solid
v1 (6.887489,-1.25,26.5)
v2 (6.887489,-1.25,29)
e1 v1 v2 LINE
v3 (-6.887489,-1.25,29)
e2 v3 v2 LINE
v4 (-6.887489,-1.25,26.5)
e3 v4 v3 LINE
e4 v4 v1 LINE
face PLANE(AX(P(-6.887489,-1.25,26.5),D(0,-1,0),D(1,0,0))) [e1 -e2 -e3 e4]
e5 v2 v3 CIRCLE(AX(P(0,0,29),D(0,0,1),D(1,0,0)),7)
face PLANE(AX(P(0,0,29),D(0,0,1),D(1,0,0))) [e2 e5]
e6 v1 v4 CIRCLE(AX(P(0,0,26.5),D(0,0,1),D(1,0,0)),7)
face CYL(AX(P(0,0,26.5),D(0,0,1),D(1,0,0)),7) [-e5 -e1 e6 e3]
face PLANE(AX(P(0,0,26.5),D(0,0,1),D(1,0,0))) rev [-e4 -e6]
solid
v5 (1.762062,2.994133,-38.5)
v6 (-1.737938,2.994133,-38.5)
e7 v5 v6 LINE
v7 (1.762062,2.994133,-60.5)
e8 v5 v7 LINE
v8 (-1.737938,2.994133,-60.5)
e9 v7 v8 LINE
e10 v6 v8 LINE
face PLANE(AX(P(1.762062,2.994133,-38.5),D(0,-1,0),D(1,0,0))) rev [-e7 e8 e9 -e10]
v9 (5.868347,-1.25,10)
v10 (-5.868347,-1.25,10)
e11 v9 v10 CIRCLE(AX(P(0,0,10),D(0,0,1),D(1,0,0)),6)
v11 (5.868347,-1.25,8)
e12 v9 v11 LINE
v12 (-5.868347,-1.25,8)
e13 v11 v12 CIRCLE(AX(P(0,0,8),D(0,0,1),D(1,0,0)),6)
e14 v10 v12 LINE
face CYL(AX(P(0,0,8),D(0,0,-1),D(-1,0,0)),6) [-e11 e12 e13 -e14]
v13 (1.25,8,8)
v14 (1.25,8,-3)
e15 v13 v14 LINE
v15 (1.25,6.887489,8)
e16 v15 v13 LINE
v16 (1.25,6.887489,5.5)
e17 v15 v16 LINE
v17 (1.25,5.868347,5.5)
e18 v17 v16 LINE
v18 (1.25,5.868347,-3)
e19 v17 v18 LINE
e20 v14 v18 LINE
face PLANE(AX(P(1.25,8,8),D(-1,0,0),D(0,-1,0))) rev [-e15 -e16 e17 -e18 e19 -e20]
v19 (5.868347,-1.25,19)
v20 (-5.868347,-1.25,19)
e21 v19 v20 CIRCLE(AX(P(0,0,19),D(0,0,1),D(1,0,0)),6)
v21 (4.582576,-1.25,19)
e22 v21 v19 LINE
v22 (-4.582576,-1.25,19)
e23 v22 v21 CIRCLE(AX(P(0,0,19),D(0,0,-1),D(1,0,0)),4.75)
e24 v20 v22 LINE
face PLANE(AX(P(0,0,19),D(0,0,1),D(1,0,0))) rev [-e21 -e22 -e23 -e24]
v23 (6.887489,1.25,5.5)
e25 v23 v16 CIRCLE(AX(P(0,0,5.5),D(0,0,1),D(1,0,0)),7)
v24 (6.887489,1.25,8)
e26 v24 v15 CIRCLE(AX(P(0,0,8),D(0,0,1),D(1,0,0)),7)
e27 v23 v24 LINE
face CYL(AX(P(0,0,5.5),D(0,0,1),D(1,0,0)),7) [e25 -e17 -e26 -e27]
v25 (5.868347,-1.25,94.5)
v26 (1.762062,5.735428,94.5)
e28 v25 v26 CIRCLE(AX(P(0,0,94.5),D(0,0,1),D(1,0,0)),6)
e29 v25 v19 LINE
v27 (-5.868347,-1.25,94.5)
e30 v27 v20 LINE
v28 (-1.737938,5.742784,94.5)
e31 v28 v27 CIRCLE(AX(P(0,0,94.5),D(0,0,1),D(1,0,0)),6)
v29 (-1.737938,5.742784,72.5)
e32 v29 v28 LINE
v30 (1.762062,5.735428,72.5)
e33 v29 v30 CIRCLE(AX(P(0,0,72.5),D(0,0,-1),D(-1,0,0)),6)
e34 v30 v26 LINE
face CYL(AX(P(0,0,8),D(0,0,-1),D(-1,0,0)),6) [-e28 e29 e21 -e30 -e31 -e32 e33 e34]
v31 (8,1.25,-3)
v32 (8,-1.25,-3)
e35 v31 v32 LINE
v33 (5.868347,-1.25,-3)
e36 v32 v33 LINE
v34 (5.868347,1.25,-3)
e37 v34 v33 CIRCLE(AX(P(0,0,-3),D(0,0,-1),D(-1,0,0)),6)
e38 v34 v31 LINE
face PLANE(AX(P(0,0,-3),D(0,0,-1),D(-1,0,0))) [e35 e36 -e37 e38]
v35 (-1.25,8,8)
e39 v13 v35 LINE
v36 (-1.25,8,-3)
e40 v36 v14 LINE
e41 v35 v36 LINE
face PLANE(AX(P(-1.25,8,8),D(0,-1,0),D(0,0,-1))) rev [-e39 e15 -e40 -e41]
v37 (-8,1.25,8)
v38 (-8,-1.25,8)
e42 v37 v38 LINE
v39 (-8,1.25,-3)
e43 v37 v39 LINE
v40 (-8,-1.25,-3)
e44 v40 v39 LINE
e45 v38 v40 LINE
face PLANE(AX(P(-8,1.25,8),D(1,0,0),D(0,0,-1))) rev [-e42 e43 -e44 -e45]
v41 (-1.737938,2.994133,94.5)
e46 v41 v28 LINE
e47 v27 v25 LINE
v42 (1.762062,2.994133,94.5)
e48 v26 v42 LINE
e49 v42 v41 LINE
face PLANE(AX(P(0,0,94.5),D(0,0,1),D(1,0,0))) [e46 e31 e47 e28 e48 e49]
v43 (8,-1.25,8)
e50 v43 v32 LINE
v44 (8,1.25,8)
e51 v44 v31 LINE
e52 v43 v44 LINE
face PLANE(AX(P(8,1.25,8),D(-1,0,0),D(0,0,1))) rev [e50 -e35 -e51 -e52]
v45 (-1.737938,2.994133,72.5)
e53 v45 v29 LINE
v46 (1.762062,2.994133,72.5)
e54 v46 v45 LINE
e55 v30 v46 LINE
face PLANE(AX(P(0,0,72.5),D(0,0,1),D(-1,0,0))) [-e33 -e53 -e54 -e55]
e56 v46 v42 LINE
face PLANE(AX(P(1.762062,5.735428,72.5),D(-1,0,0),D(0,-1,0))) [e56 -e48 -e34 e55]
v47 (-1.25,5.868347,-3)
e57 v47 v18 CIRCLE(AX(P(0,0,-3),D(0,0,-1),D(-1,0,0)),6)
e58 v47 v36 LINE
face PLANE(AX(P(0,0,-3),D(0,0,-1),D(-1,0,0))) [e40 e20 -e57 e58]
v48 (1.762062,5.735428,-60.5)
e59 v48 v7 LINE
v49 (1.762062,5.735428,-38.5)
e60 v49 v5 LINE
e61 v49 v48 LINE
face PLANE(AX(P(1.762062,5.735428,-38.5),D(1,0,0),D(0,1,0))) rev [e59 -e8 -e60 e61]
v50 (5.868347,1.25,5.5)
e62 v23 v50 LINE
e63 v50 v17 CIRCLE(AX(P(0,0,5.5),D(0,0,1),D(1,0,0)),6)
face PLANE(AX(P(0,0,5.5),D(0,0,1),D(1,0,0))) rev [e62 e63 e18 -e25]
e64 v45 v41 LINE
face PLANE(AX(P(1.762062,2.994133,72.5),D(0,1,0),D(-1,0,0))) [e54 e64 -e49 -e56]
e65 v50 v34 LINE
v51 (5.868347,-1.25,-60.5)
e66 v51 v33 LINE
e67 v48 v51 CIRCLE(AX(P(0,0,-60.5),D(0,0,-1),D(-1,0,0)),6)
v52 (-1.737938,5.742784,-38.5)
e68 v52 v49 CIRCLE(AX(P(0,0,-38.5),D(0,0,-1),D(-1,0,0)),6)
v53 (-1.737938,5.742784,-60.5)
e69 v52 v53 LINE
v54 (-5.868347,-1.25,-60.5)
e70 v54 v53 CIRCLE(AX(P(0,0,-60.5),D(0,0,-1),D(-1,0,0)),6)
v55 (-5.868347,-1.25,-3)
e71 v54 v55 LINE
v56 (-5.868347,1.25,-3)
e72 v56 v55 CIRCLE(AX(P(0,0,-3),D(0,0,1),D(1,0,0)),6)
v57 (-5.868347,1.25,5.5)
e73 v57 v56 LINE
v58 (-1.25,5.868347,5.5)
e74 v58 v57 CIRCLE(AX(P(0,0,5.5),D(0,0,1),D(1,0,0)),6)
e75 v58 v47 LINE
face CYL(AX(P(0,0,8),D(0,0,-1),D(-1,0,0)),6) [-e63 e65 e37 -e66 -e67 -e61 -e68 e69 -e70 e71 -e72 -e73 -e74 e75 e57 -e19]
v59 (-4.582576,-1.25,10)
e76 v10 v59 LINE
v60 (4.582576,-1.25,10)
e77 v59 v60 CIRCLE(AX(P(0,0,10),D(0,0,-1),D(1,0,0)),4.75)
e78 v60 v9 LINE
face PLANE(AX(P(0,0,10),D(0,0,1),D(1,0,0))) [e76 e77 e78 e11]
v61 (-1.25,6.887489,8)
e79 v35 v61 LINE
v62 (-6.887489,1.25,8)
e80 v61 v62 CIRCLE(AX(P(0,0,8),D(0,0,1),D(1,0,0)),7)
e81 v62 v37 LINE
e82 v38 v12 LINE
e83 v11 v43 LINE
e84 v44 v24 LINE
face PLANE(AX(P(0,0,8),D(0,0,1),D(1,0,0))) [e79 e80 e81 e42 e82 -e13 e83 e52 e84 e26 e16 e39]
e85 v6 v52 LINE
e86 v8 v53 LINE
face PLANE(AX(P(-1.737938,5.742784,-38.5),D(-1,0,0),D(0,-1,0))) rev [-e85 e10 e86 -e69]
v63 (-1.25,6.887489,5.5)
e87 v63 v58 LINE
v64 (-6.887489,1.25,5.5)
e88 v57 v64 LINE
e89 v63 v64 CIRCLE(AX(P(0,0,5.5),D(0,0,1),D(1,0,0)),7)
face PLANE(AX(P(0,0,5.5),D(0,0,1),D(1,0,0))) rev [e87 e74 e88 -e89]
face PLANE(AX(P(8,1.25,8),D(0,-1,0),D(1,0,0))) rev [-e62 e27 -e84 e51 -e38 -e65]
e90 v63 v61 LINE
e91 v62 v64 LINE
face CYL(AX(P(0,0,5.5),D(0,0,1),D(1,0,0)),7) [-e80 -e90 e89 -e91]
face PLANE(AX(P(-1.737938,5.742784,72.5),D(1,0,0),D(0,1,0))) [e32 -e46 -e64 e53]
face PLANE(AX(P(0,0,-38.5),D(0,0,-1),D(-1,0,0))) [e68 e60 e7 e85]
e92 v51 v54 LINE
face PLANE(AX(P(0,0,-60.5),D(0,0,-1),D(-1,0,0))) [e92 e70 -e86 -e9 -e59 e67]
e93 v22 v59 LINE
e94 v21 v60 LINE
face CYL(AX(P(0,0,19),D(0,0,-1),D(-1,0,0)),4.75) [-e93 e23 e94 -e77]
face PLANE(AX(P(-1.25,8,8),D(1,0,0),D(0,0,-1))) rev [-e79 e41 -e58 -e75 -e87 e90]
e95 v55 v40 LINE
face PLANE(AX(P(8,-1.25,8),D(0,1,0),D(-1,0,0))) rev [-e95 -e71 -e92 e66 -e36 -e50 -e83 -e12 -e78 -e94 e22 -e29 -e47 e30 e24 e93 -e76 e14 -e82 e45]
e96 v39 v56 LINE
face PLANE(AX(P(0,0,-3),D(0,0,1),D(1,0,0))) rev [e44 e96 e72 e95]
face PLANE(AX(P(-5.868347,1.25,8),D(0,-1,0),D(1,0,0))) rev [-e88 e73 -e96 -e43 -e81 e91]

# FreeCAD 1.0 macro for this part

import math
import FreeCAD as App
import Part
import Sketcher
from FreeCAD import Vector
Q = App.Units.Quantity

doc = App.newDocument("Part")
body = doc.addObject("PartDesign::Body", "Body")

sketch1 = doc.addObject("Sketcher::SketchObject", "Sketch")
body.addObject(sketch1)
sketch1.AttachmentSupport = (doc.XY_Plane, [""])
sketch1.MapMode = "FlatFace"
sketch1.addGeometry([
    Part.LineSegment(Vector(8, 1.2, 0), Vector(5.9, 1.2, 0)),
    Part.ArcOfCircle(Part.Circle(Vector(0, 0, 0), Vector(0, 0, 1), 6), math.radians(12), math.radians(78)),
    Part.LineSegment(Vector(1.2, 5.9, 0), Vector(1.2, 8, 0)),
    Part.LineSegment(Vector(1.2, 8, 0), Vector(-1.2, 8, 0)),
    Part.LineSegment(Vector(-1.2, 8, 0), Vector(-1.2, 5.9, 0)),
    Part.ArcOfCircle(Part.Circle(Vector(0, 0, 0), Vector(0, 0, 1), 6), math.radians(102), math.radians(168)),
    Part.LineSegment(Vector(-5.9, 1.2, 0), Vector(-8, 1.2, 0)),
    Part.LineSegment(Vector(-8, 1.2, 0), Vector(-8, -1.2, 0)),
    Part.LineSegment(Vector(-8, -1.2, 0), Vector(8, -1.2, 0)),
    Part.LineSegment(Vector(8, -1.2, 0), Vector(8, 1.2, 0)),
], False)
sketch1.addConstraint([
    Sketcher.Constraint("Coincident", 0, 2, 1, 1),
    Sketcher.Constraint("Coincident", 1, 2, 2, 1),
    Sketcher.Constraint("Coincident", 2, 2, 3, 1),
    Sketcher.Constraint("Coincident", 3, 2, 4, 1),
    Sketcher.Constraint("Coincident", 4, 2, 5, 1),
    Sketcher.Constraint("Coincident", 5, 2, 6, 1),
    Sketcher.Constraint("Coincident", 6, 2, 7, 1),
    Sketcher.Constraint("Coincident", 7, 2, 8, 1),
    Sketcher.Constraint("Coincident", 8, 2, 9, 1),
    Sketcher.Constraint("Coincident", 9, 2, 0, 1),
    Sketcher.Constraint("Horizontal", 0),
    Sketcher.Constraint("Vertical", 2),
    Sketcher.Constraint("Horizontal", 3),
    Sketcher.Constraint("Vertical", 4),
    Sketcher.Constraint("Horizontal", 6),
    Sketcher.Constraint("Vertical", 7),
    Sketcher.Constraint("Horizontal", 8),
    Sketcher.Constraint("Vertical", 9),
    Sketcher.Constraint("Coincident", 1, 3, -1, 1),
    Sketcher.Constraint("Coincident", 5, 3, -1, 1),
    Sketcher.Constraint("Equal", 1, 5),
    Sketcher.Constraint("Symmetric", 6, 2, 8, 2, -1, 1),
    Sketcher.Constraint("Horizontal", 1, 2, 4, 2),
    Sketcher.Constraint("Horizontal", 0, 2, 5, 2),
    Sketcher.Constraint("Equal", 6, 2),
    Sketcher.Constraint("Equal", 3, 7),
    Sketcher.Constraint("Radius", 1, Q("6 mm")),
    Sketcher.Constraint("DistanceX", 8, 1, 8, 2, Q("16 mm")),
    Sketcher.Constraint("DistanceX", 3, 2, 3, 1, Q("2.5 mm")),
])
pad1 = doc.addObject("PartDesign::Pad", "Pad")
body.addObject(pad1)
pad1.Profile = sketch1
pad1.Length = 8

sketch2 = doc.addObject("Sketcher::SketchObject", "Sketch001")
body.addObject(sketch2)
sketch2.AttachmentSupport = (doc.XY_Plane, [""])
sketch2.MapMode = "FlatFace"
sketch2.AttachmentOffset = App.Placement(Vector(0, 0, 8), App.Rotation())
sketch2.addGeometry([
    Part.LineSegment(Vector(-6, -1, 0), Vector(6, -1, 0)),
    Part.ArcOfCircle(Part.Circle(Vector(0, 0, 0), Vector(0, 0, 1), 6), math.radians(-12), math.radians(192)),
], False)
sketch2.addConstraint([
    Sketcher.Constraint("Coincident", 0, 1, 1, 2),
    Sketcher.Constraint("Coincident", 1, 1, 0, 2),
    Sketcher.Constraint("Horizontal", 0),
    Sketcher.Constraint("Coincident", 1, 3, -1, 1),
    Sketcher.Constraint("Radius", 1, Q("6 mm")),
    Sketcher.Constraint("DistanceY", 0, 1, -1, 1, Q("1.25 mm")),
])
pad2 = doc.addObject("PartDesign::Pad", "Pad001")
body.addObject(pad2)
pad2.Profile = sketch2
pad2.Length = 26

sketch3 = doc.addObject("Sketcher::SketchObject", "Sketch002")
body.addObject(sketch3)
sketch3.AttachmentSupport = (doc.XY_Plane, [""])
sketch3.MapMode = "FlatFace"
sketch3.AttachmentOffset = App.Placement(Vector(0, 0, 8), App.Rotation())
sketch3.addGeometry([
    Part.LineSegment(Vector(-7, -1, 0), Vector(7, -1, 0)),
    Part.ArcOfCircle(Part.Circle(Vector(0, 0, 0), Vector(0, 0, 1), 7), math.radians(-10), math.radians(190)),
], False)
sketch3.addConstraint([
    Sketcher.Constraint("Coincident", 0, 1, 1, 2),
    Sketcher.Constraint("Coincident", 1, 1, 0, 2),
    Sketcher.Constraint("Horizontal", 0),
    Sketcher.Constraint("Coincident", 1, 3, -1, 1),
    Sketcher.Constraint("Radius", 1, Q("7 mm")),
    Sketcher.Constraint("DistanceY", 0, 1, -1, 1, Q("1.25 mm")),
])
pad3 = doc.addObject("PartDesign::Pad", "Pad002")
body.addObject(pad3)
pad3.Profile = sketch3
pad3.Length = 2.5
pad3.Reversed = True

sketch4 = doc.addObject("Sketcher::SketchObject", "Sketch003")
body.addObject(sketch4)
sketch4.AttachmentSupport = (doc.XY_Plane, [""])
sketch4.MapMode = "FlatFace"
sketch4.AttachmentOffset = App.Placement(Vector(0, 0, -8), App.Rotation())
sketch4.addGeometry([
    Part.LineSegment(Vector(6, -1, 0), Vector(-6, -1, 0)),
    Part.ArcOfCircle(Part.Circle(Vector(0, 0, 0), Vector(0, 0, 1), 6), math.radians(-12), math.radians(192)),
], False)
sketch4.addConstraint([
    Sketcher.Constraint("Coincident", 0, 1, 1, 1),
    Sketcher.Constraint("Coincident", 1, 2, 0, 2),
    Sketcher.Constraint("Horizontal", 0),
    Sketcher.Constraint("Coincident", 1, 3, -1, 1),
    Sketcher.Constraint("Radius", 1, Q("6 mm")),
    Sketcher.Constraint("DistanceY", 0, 1, -1, 1, Q("1.25 mm")),
])
pad4 = doc.addObject("PartDesign::Pad", "Pad003")
body.addObject(pad4)
pad4.Profile = sketch4
pad4.Length = 8

sketch5 = doc.addObject("Sketcher::SketchObject", "Sketch004")
body.addObject(sketch5)
sketch5.AttachmentSupport = (doc.XY_Plane, [""])
sketch5.MapMode = "FlatFace"
sketch5.addGeometry([
    Part.LineSegment(Vector(1.2, 8, 0), Vector(1.2, 5.9, 0)),
    Part.LineSegment(Vector(1.2, 5.9, 0), Vector(-1.2, 5.9, 0)),
    Part.LineSegment(Vector(-1.2, 5.9, 0), Vector(-1.2, 8, 0)),
    Part.LineSegment(Vector(-1.2, 8, 0), Vector(1.2, 8, 0)),
    Part.LineSegment(Vector(-5.9, 1.2, 0), Vector(-5.9, -1.2, 0)),
    Part.LineSegment(Vector(-5.9, -1.2, 0), Vector(-8, -1.2, 0)),
    Part.LineSegment(Vector(-8, -1.2, 0), Vector(-8, 1.2, 0)),
    Part.LineSegment(Vector(-8, 1.2, 0), Vector(-5.9, 1.2, 0)),
    Part.LineSegment(Vector(8, 1.2, 0), Vector(8, -1.2, 0)),
    Part.LineSegment(Vector(8, -1.2, 0), Vector(5.9, -1.2, 0)),
    Part.LineSegment(Vector(5.9, -1.2, 0), Vector(5.9, 1.2, 0)),
    Part.LineSegment(Vector(5.9, 1.2, 0), Vector(8, 1.2, 0)),
], False)
sketch5.addConstraint([
    Sketcher.Constraint("Coincident", 0, 2, 1, 1),
    Sketcher.Constraint("Coincident", 1, 2, 2, 1),
    Sketcher.Constraint("Coincident", 2, 2, 3, 1),
    Sketcher.Constraint("Coincident", 3, 2, 0, 1),
    Sketcher.Constraint("Coincident", 4, 2, 5, 1),
    Sketcher.Constraint("Coincident", 5, 2, 6, 1),
    Sketcher.Constraint("Coincident", 6, 2, 7, 1),
    Sketcher.Constraint("Coincident", 7, 2, 4, 1),
    Sketcher.Constraint("Coincident", 8, 2, 9, 1),
    Sketcher.Constraint("Coincident", 9, 2, 10, 1),
    Sketcher.Constraint("Coincident", 10, 2, 11, 1),
    Sketcher.Constraint("Coincident", 11, 2, 8, 1),
    Sketcher.Constraint("Vertical", 0),
    Sketcher.Constraint("Horizontal", 1),
    Sketcher.Constraint("Vertical", 2),
    Sketcher.Constraint("Horizontal", 3),
    Sketcher.Constraint("Vertical", 4),
    Sketcher.Constraint("Horizontal", 5),
    Sketcher.Constraint("Vertical", 6),
    Sketcher.Constraint("Horizontal", 7),
    Sketcher.Constraint("Vertical", 8),
    Sketcher.Constraint("Horizontal", 9),
    Sketcher.Constraint("Vertical", 10),
    Sketcher.Constraint("Horizontal", 11),
    Sketcher.Constraint("Symmetric", 6, 2, 8, 2, -1, 1),
    Sketcher.Constraint("Symmetric", 4, 2, 10, 2, -1, 1),
    Sketcher.Constraint("Horizontal", 5, 2, 8, 2),
    Sketcher.Constraint("Equal", 11, 0),
    Sketcher.Constraint("Equal", 3, 4),
    Sketcher.Constraint("DistanceX", 1, 2, 1, 1, Q("2.5 mm")),
    Sketcher.Constraint("DistanceY", -1, 1, 2, 2, Q("8 mm")),
    Sketcher.Constraint("DistanceX", 5, 2, -1, 1, Q("8 mm")),
    Sketcher.Constraint("DistanceX", -1, 1, 0, 2, Q("1.25 mm")),
    Sketcher.Constraint("DistanceX", 5, 2, 5, 1, Q("2.131653 mm")),
])
pad5 = doc.addObject("PartDesign::Pad", "Pad004")
body.addObject(pad5)
pad5.Profile = sketch5
pad5.Length = 3
pad5.Reversed = True

sketch6 = doc.addObject("Sketcher::SketchObject", "Sketch005")
body.addObject(sketch6)
sketch6.AttachmentSupport = (doc.XY_Plane, [""])
sketch6.MapMode = "FlatFace"
sketch6.AttachmentOffset = App.Placement(Vector(0, 0, 34), App.Rotation())
sketch6.addGeometry([
    Part.LineSegment(Vector(-6, -1, 0), Vector(6, -1, 0)),
    Part.ArcOfCircle(Part.Circle(Vector(0, 0, 0), Vector(0, 0, 1), 6), math.radians(-12), math.radians(192)),
], False)
sketch6.addConstraint([
    Sketcher.Constraint("Coincident", 0, 1, 1, 2),
    Sketcher.Constraint("Coincident", 1, 1, 0, 2),
    Sketcher.Constraint("Horizontal", 0),
    Sketcher.Constraint("Coincident", 1, 3, -1, 1),
    Sketcher.Constraint("Radius", 1, Q("6 mm")),
    Sketcher.Constraint("DistanceY", 0, 1, -1, 1, Q("1.25 mm")),
])
pad6 = doc.addObject("PartDesign::Pad", "Pad005")
body.addObject(pad6)
pad6.Profile = sketch6
pad6.Length = 60.5

sketch7 = doc.addObject("Sketcher::SketchObject", "Sketch006")
body.addObject(sketch7)
sketch7.AttachmentSupport = (doc.XY_Plane, [""])
sketch7.MapMode = "FlatFace"
sketch7.AttachmentOffset = App.Placement(Vector(0, 0, -60.5), App.Rotation())
sketch7.addGeometry([
    Part.LineSegment(Vector(6, -1, 0), Vector(-6, -1, 0)),
    Part.ArcOfCircle(Part.Circle(Vector(0, 0, 0), Vector(0, 0, 1), 6), math.radians(-12), math.radians(192)),
], False)
sketch7.addConstraint([
    Sketcher.Constraint("Coincident", 0, 1, 1, 1),
    Sketcher.Constraint("Coincident", 1, 2, 0, 2),
    Sketcher.Constraint("Horizontal", 0),
    Sketcher.Constraint("Coincident", 1, 3, -1, 1),
    Sketcher.Constraint("Radius", 1, Q("6 mm")),
    Sketcher.Constraint("DistanceY", 0, 1, -1, 1, Q("1.25 mm")),
])
pad7 = doc.addObject("PartDesign::Pad", "Pad006")
body.addObject(pad7)
pad7.Profile = sketch7
pad7.Length = 52.5

sketch8 = doc.addObject("Sketcher::SketchObject", "Sketch007")
body.addObject(sketch8)
sketch8.AttachmentSupport = (doc.XY_Plane, [""])
sketch8.MapMode = "FlatFace"
sketch8.AttachmentOffset = App.Placement(Vector(0, 0, -60.5), App.Rotation())
sketch8.addGeometry([
    Part.LineSegment(Vector(1.8, 5.7, 0), Vector(1.8, 3, 0)),
    Part.LineSegment(Vector(1.8, 3, 0), Vector(-1.7, 3, 0)),
    Part.LineSegment(Vector(-1.7, 3, 0), Vector(-1.7, 5.7, 0)),
    Part.ArcOfCircle(Part.Circle(Vector(0, 0, 0), Vector(0, 0, 1), 6), math.radians(73), math.radians(107)),
], False)
sketch8.addConstraint([
    Sketcher.Constraint("Coincident", 0, 2, 1, 1),
    Sketcher.Constraint("Coincident", 1, 2, 2, 1),
    Sketcher.Constraint("Coincident", 2, 2, 3, 2),
    Sketcher.Constraint("Coincident", 3, 1, 0, 1),
    Sketcher.Constraint("Vertical", 0),
    Sketcher.Constraint("Horizontal", 1),
    Sketcher.Constraint("Vertical", 2),
    Sketcher.Constraint("Coincident", 3, 3, -1, 1),
    Sketcher.Constraint("Radius", 3, Q("6 mm")),
    Sketcher.Constraint("DistanceX", 1, 2, 1, 1, Q("3.5 mm")),
    Sketcher.Constraint("DistanceY", 2, 1, 2, 2, Q("2.748651 mm")),
    Sketcher.Constraint("DistanceY", 0, 2, 0, 1, Q("2.741295 mm")),
])
pocket1 = doc.addObject("PartDesign::Pocket", "Pocket")
body.addObject(pocket1)
pocket1.Profile = sketch8
pocket1.Length = 22
pocket1.Reversed = True
doc.recompute()

datumplane = doc.addObject("PartDesign::Plane", "DatumPlane")
body.addObject(datumplane)
datumplane.AttachmentSupport = (doc.XY_Plane, [""])
datumplane.MapMode = "FlatFace"
datumplane.AttachmentOffset = App.Placement(Vector(0, 0, 17), App.Rotation())
mirrored = doc.addObject("PartDesign::Mirrored", "Mirrored")
body.addObject(mirrored)
mirrored.Originals = [pocket1]
mirrored.MirrorPlane = (datumplane, [""])
body.Tip = mirrored

sketch9 = doc.addObject("Sketcher::SketchObject", "Sketch008")
body.addObject(sketch9)
sketch9.AttachmentSupport = (doc.XY_Plane, [""])
sketch9.MapMode = "FlatFace"
sketch9.AttachmentOffset = App.Placement(Vector(0, 0, 10), App.Rotation())
sketch9.addGeometry([
    Part.LineSegment(Vector(-9.5, -1.2, 0), Vector(-4.6, -1.2, 0)),
    Part.ArcOfCircle(Part.Circle(Vector(0, 0, 0), Vector(0, 0, 1), 4.8), math.radians(-15), math.radians(195)),
    Part.LineSegment(Vector(4.6, -1.2, 0), Vector(9.5, -1.2, 0)),
    Part.ArcOfCircle(Part.Circle(Vector(0, 0, 0), Vector(0, 0, 1), 9.6), math.radians(-7), math.radians(187)),
], False)
sketch9.addConstraint([
    Sketcher.Constraint("Coincident", 0, 2, 1, 2),
    Sketcher.Constraint("Coincident", 1, 1, 2, 1),
    Sketcher.Constraint("Coincident", 2, 2, 3, 1),
    Sketcher.Constraint("Coincident", 3, 2, 0, 1),
    Sketcher.Constraint("Horizontal", 0),
    Sketcher.Constraint("Horizontal", 2),
    Sketcher.Constraint("Coincident", 1, 3, -1, 1),
    Sketcher.Constraint("Coincident", 3, 3, -1, 1),
    Sketcher.Constraint("Horizontal", 0, 2, 1, 1),
    Sketcher.Constraint("Radius", 1, Q("4.75 mm")),
    Sketcher.Constraint("DistanceY", 0, 2, -1, 1, Q("1.25 mm")),
    Sketcher.Constraint("Radius", 3, Q("9.61006 mm")),
])
pocket2 = doc.addObject("PartDesign::Pocket", "Pocket001")
body.addObject(pocket2)
pocket2.Profile = sketch9
pocket2.Length = 9
pocket2.Reversed = True
body2 = doc.addObject("PartDesign::Body", "Body001")

sketch10 = doc.addObject("Sketcher::SketchObject", "Sketch009")
body2.addObject(sketch10)
sketch10.AttachmentSupport = (doc.getObject("XY_Plane001"), [""])
sketch10.MapMode = "FlatFace"
sketch10.AttachmentOffset = App.Placement(Vector(0, 0, 29), App.Rotation())
sketch10.addGeometry([
    Part.LineSegment(Vector(-7, -1, 0), Vector(7, -1, 0)),
    Part.ArcOfCircle(Part.Circle(Vector(0, 0, 0), Vector(0, 0, 1), 7), math.radians(-10), math.radians(190)),
], False)
sketch10.addConstraint([
    Sketcher.Constraint("Coincident", 0, 1, 1, 2),
    Sketcher.Constraint("Coincident", 1, 1, 0, 2),
    Sketcher.Constraint("Horizontal", 0),
    Sketcher.Constraint("Coincident", 1, 3, -1, 1),
    Sketcher.Constraint("Radius", 1, Q("7 mm")),
    Sketcher.Constraint("DistanceY", 0, 1, -1, 1, Q("1.25 mm")),
])
pad8 = doc.addObject("PartDesign::Pad", "Pad007")
body2.addObject(pad8)
pad8.Profile = sketch10
pad8.Length = 2.5
pad8.Reversed = True

doc.recompute()
